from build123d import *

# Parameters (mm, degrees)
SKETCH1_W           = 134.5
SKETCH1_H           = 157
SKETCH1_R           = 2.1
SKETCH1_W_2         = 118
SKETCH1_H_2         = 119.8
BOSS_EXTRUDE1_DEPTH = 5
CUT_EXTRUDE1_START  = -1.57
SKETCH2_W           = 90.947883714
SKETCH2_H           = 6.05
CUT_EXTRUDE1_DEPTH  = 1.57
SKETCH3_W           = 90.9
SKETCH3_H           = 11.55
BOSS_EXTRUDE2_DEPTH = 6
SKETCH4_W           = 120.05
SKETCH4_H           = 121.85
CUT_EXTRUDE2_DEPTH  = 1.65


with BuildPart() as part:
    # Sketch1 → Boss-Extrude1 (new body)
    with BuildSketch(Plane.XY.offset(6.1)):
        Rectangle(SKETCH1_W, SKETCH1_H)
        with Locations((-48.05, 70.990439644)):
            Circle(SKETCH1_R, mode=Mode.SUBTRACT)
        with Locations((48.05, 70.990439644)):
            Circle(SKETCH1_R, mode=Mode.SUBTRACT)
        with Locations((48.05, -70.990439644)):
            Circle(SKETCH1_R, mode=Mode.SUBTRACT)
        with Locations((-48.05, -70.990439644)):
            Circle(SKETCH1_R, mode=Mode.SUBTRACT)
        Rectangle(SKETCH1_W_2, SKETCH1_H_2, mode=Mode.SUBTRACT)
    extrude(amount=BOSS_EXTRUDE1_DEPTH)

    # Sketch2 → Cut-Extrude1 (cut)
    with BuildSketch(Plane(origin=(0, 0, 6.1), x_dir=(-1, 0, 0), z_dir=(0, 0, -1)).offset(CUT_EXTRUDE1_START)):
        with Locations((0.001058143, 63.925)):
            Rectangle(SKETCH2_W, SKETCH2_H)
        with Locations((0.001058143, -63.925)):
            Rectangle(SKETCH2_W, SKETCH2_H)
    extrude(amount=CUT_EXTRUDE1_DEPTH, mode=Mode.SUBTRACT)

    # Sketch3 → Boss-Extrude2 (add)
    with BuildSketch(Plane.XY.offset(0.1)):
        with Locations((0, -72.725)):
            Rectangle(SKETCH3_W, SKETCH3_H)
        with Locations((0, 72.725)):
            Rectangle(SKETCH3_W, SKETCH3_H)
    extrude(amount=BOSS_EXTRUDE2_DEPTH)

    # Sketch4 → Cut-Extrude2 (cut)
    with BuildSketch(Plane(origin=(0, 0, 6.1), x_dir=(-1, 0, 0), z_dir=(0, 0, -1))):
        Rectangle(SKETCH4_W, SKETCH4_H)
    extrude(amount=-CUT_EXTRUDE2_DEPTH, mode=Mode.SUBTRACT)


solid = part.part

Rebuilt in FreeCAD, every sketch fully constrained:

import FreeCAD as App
import Part
import Sketcher

doc = App.newDocument("Part")
body = doc.addObject("PartDesign::Body", "Body")

sketch1 = body.newObject("Sketcher::SketchObject", "Sketch")
sketch1.AttachmentSupport = (doc.getObject("XY_Plane"), [""])
sketch1.MapMode = "FlatFace"
sketch1.AttachmentOffset = App.Placement(App.Vector(0, 0, 6.1), App.Rotation())
sketch1.addGeometry([
    Part.LineSegment(App.Vector(-67.2, 78.5, 0), App.Vector(-67.2, -78.5, 0)),
    Part.LineSegment(App.Vector(-67.2, -78.5, 0), App.Vector(67.2, -78.5, 0)),
    Part.LineSegment(App.Vector(67.2, -78.5, 0), App.Vector(67.2, 78.5, 0)),
    Part.LineSegment(App.Vector(67.2, 78.5, 0), App.Vector(-67.2, 78.5, 0)),
    Part.Circle(App.Vector(-48, -71, 0), App.Vector(0, 0, 1), 2.1),
    Part.Circle(App.Vector(48, -71, 0), App.Vector(0, 0, 1), 2.1),
    Part.Circle(App.Vector(-48, 71, 0), App.Vector(0, 0, 1), 2.1),
    Part.LineSegment(App.Vector(59, -59.9, 0), App.Vector(-59, -59.9, 0)),
    Part.LineSegment(App.Vector(-59, -59.9, 0), App.Vector(-59, 59.9, 0)),
    Part.LineSegment(App.Vector(-59, 59.9, 0), App.Vector(59, 59.9, 0)),
    Part.LineSegment(App.Vector(59, 59.9, 0), App.Vector(59, -59.9, 0)),
    Part.Circle(App.Vector(48, 71, 0), App.Vector(0, 0, 1), 2.1),
], False)
sketch1.addConstraint([
    Sketcher.Constraint("Coincident", 0, 2, 1, 1),
    Sketcher.Constraint("Coincident", 1, 2, 2, 1),
    Sketcher.Constraint("Coincident", 2, 2, 3, 1),
    Sketcher.Constraint("Coincident", 3, 2, 0, 1),
    Sketcher.Constraint("Coincident", 7, 2, 8, 1),
    Sketcher.Constraint("Coincident", 8, 2, 9, 1),
    Sketcher.Constraint("Coincident", 9, 2, 10, 1),
    Sketcher.Constraint("Coincident", 10, 2, 7, 1),
    Sketcher.Constraint("Vertical", 0),
    Sketcher.Constraint("Horizontal", 1),
    Sketcher.Constraint("Vertical", 2),
    Sketcher.Constraint("Horizontal", 3),
    Sketcher.Constraint("Horizontal", 7),
    Sketcher.Constraint("Vertical", 8),
    Sketcher.Constraint("Horizontal", 9),
    Sketcher.Constraint("Vertical", 10),
    Sketcher.Constraint("Equal", 4, 5),
    Sketcher.Constraint("Equal", 5, 6),
    Sketcher.Constraint("Equal", 6, 11),
    Sketcher.Constraint("Symmetric", 5, 3, 6, 3, -1, 1),
    Sketcher.Constraint("Symmetric", 4, 3, 11, 3, -1, 1),
    Sketcher.Constraint("Symmetric", 0, 2, 2, 2, -1, 1),
    Sketcher.Constraint("Symmetric", 7, 2, 9, 2, -1, 1),
    Sketcher.Constraint("Symmetric", 4, 3, 5, 3, -2),
    Sketcher.Constraint("Diameter", 4, 4.2),
    Sketcher.Constraint("DistanceX", 7, 2, 7, 1, 118.0),
    Sketcher.Constraint("DistanceY", 0, 2, 0, 1, 157.0),
    Sketcher.Constraint("DistanceX", 1, 1, 1, 2, 134.5),
    Sketcher.Constraint("DistanceY", 8, 1, 8, 2, 119.8),
    Sketcher.Constraint("DistanceX", 4, 3, 5, 3, 96.1),
    Sketcher.Constraint("DistanceY", 4, 3, -1, 1, 70.99044),
])
pad1 = body.newObject("PartDesign::Pad", "Pad")
pad1.Profile = sketch1
pad1.Length = 5

sketch2 = body.newObject("Sketcher::SketchObject", "Sketch001")
sketch2.AttachmentSupport = (doc.getObject("XY_Plane"), [""])
sketch2.MapMode = "FlatFace"
sketch2.AttachmentOffset = App.Placement(App.Vector(0, 0, 7.67), App.Rotation())
sketch2.addGeometry([
    Part.LineSegment(App.Vector(45, 67, 0), App.Vector(45, 61, 0)),
    Part.LineSegment(App.Vector(45, 61, 0), App.Vector(-45, 61, 0)),
    Part.LineSegment(App.Vector(-45, 61, 0), App.Vector(-45, 67, 0)),
    Part.LineSegment(App.Vector(-45, 67, 0), App.Vector(45, 67, 0)),
    Part.LineSegment(App.Vector(45, -61, 0), App.Vector(45, -67, 0)),
    Part.LineSegment(App.Vector(45, -67, 0), App.Vector(-45, -67, 0)),
    Part.LineSegment(App.Vector(-45, -67, 0), App.Vector(-45, -61, 0)),
    Part.LineSegment(App.Vector(-45, -61, 0), App.Vector(45, -61, 0)),
], False)
sketch2.addConstraint([
    Sketcher.Constraint("Coincident", 0, 2, 1, 1),
    Sketcher.Constraint("Coincident", 1, 2, 2, 1),
    Sketcher.Constraint("Coincident", 2, 2, 3, 1),
    Sketcher.Constraint("Coincident", 3, 2, 0, 1),
    Sketcher.Constraint("Coincident", 4, 2, 5, 1),
    Sketcher.Constraint("Coincident", 5, 2, 6, 1),
    Sketcher.Constraint("Coincident", 6, 2, 7, 1),
    Sketcher.Constraint("Coincident", 7, 2, 4, 1),
    Sketcher.Constraint("Vertical", 0),
    Sketcher.Constraint("Horizontal", 1),
    Sketcher.Constraint("Vertical", 2),
    Sketcher.Constraint("Horizontal", 3),
    Sketcher.Constraint("Vertical", 4),
    Sketcher.Constraint("Horizontal", 5),
    Sketcher.Constraint("Vertical", 6),
    Sketcher.Constraint("Horizontal", 7),
    Sketcher.Constraint("Symmetric", 3, 2, 4, 2, -1),
    Sketcher.Constraint("Symmetric", 1, 2, 6, 2, -1),
    Sketcher.Constraint("DistanceY", 0, 2, 0, 1, 6.05),
    Sketcher.Constraint("DistanceY", -1, 1, 0, 2, 60.9),
    Sketcher.Constraint("DistanceX", 1, 2, -1, 1, 45.475),
    Sketcher.Constraint("DistanceX", 1, 2, 1, 1, 90.947884),
])
pocket1 = body.newObject("PartDesign::Pocket", "Pocket")
pocket1.Profile = sketch2
pocket1.Length = 1.57

sketch3 = body.newObject("Sketcher::SketchObject", "Sketch002")
sketch3.AttachmentSupport = (doc.getObject("XY_Plane"), [""])
sketch3.MapMode = "FlatFace"
sketch3.AttachmentOffset = App.Placement(App.Vector(0, 0, 0.1), App.Rotation())
sketch3.addGeometry([
    Part.LineSegment(App.Vector(-45, -67, 0), App.Vector(-45, -78, 0)),
    Part.LineSegment(App.Vector(-45, -78, 0), App.Vector(45, -78, 0)),
    Part.LineSegment(App.Vector(45, -78, 0), App.Vector(45, -67, 0)),
    Part.LineSegment(App.Vector(45, -67, 0), App.Vector(-45, -67, 0)),
    Part.LineSegment(App.Vector(-45, 78, 0), App.Vector(-45, 67, 0)),
    Part.LineSegment(App.Vector(-45, 67, 0), App.Vector(45, 67, 0)),
    Part.LineSegment(App.Vector(45, 67, 0), App.Vector(45, 78, 0)),
    Part.LineSegment(App.Vector(45, 78, 0), App.Vector(-45, 78, 0)),
], False)
sketch3.addConstraint([
    Sketcher.Constraint("Coincident", 0, 2, 1, 1),
    Sketcher.Constraint("Coincident", 1, 2, 2, 1),
    Sketcher.Constraint("Coincident", 2, 2, 3, 1),
    Sketcher.Constraint("Coincident", 3, 2, 0, 1),
    Sketcher.Constraint("Coincident", 4, 2, 5, 1),
    Sketcher.Constraint("Coincident", 5, 2, 6, 1),
    Sketcher.Constraint("Coincident", 6, 2, 7, 1),
    Sketcher.Constraint("Coincident", 7, 2, 4, 1),
    Sketcher.Constraint("Vertical", 0),
    Sketcher.Constraint("Horizontal", 1),
    Sketcher.Constraint("Vertical", 2),
    Sketcher.Constraint("Horizontal", 3),
    Sketcher.Constraint("Vertical", 4),
    Sketcher.Constraint("Horizontal", 5),
    Sketcher.Constraint("Vertical", 6),
    Sketcher.Constraint("Horizontal", 7),
    Sketcher.Constraint("Symmetric", 2, 2, 4, 2, -1, 1),
    Sketcher.Constraint("Symmetric", 0, 2, 6, 2, -1, 1),
    Sketcher.Constraint("Vertical", 3, 2, 4, 2),
    Sketcher.Constraint("DistanceX", 1, 1, 1, 2, 90.9),
    Sketcher.Constraint("DistanceY", 1, 2, 6, 2, 157.0),
    Sketcher.Constraint("DistanceY", 0, 2, 0, 1, 11.55),
])
pad2 = body.newObject("PartDesign::Pad", "Pad001")
pad2.Profile = sketch3
pad2.Length = 6

sketch4 = body.newObject("Sketcher::SketchObject", "Sketch003")
sketch4.AttachmentSupport = (doc.getObject("XY_Plane"), [""])
sketch4.MapMode = "FlatFace"
sketch4.AttachmentOffset = App.Placement(App.Vector(0, 0, 6.1), App.Rotation())
sketch4.addGeometry([
    Part.LineSegment(App.Vector(60, 61, 0), App.Vector(60, -61, 0)),
    Part.LineSegment(App.Vector(60, -61, 0), App.Vector(-60, -61, 0)),
    Part.LineSegment(App.Vector(-60, -61, 0), App.Vector(-60, 61, 0)),
    Part.LineSegment(App.Vector(-60, 61, 0), App.Vector(60, 61, 0)),
], False)
sketch4.addConstraint([
    Sketcher.Constraint("Coincident", 0, 2, 1, 1),
    Sketcher.Constraint("Coincident", 1, 2, 2, 1),
    Sketcher.Constraint("Coincident", 2, 2, 3, 1),
    Sketcher.Constraint("Coincident", 3, 2, 0, 1),
    Sketcher.Constraint("Vertical", 0),
    Sketcher.Constraint("Horizontal", 1),
    Sketcher.Constraint("Vertical", 2),
    Sketcher.Constraint("Horizontal", 3),
    Sketcher.Constraint("Symmetric", 0, 2, 2, 2, -1, 1),
    Sketcher.Constraint("DistanceX", 1, 2, 1, 1, 120.05),
    Sketcher.Constraint("DistanceY", 0, 2, 0, 1, 121.85),
])
pocket2 = body.newObject("PartDesign::Pocket", "Pocket001")
pocket2.Profile = sketch4
pocket2.Length = 1.65
pocket2.Reversed = True

doc.recompute()
